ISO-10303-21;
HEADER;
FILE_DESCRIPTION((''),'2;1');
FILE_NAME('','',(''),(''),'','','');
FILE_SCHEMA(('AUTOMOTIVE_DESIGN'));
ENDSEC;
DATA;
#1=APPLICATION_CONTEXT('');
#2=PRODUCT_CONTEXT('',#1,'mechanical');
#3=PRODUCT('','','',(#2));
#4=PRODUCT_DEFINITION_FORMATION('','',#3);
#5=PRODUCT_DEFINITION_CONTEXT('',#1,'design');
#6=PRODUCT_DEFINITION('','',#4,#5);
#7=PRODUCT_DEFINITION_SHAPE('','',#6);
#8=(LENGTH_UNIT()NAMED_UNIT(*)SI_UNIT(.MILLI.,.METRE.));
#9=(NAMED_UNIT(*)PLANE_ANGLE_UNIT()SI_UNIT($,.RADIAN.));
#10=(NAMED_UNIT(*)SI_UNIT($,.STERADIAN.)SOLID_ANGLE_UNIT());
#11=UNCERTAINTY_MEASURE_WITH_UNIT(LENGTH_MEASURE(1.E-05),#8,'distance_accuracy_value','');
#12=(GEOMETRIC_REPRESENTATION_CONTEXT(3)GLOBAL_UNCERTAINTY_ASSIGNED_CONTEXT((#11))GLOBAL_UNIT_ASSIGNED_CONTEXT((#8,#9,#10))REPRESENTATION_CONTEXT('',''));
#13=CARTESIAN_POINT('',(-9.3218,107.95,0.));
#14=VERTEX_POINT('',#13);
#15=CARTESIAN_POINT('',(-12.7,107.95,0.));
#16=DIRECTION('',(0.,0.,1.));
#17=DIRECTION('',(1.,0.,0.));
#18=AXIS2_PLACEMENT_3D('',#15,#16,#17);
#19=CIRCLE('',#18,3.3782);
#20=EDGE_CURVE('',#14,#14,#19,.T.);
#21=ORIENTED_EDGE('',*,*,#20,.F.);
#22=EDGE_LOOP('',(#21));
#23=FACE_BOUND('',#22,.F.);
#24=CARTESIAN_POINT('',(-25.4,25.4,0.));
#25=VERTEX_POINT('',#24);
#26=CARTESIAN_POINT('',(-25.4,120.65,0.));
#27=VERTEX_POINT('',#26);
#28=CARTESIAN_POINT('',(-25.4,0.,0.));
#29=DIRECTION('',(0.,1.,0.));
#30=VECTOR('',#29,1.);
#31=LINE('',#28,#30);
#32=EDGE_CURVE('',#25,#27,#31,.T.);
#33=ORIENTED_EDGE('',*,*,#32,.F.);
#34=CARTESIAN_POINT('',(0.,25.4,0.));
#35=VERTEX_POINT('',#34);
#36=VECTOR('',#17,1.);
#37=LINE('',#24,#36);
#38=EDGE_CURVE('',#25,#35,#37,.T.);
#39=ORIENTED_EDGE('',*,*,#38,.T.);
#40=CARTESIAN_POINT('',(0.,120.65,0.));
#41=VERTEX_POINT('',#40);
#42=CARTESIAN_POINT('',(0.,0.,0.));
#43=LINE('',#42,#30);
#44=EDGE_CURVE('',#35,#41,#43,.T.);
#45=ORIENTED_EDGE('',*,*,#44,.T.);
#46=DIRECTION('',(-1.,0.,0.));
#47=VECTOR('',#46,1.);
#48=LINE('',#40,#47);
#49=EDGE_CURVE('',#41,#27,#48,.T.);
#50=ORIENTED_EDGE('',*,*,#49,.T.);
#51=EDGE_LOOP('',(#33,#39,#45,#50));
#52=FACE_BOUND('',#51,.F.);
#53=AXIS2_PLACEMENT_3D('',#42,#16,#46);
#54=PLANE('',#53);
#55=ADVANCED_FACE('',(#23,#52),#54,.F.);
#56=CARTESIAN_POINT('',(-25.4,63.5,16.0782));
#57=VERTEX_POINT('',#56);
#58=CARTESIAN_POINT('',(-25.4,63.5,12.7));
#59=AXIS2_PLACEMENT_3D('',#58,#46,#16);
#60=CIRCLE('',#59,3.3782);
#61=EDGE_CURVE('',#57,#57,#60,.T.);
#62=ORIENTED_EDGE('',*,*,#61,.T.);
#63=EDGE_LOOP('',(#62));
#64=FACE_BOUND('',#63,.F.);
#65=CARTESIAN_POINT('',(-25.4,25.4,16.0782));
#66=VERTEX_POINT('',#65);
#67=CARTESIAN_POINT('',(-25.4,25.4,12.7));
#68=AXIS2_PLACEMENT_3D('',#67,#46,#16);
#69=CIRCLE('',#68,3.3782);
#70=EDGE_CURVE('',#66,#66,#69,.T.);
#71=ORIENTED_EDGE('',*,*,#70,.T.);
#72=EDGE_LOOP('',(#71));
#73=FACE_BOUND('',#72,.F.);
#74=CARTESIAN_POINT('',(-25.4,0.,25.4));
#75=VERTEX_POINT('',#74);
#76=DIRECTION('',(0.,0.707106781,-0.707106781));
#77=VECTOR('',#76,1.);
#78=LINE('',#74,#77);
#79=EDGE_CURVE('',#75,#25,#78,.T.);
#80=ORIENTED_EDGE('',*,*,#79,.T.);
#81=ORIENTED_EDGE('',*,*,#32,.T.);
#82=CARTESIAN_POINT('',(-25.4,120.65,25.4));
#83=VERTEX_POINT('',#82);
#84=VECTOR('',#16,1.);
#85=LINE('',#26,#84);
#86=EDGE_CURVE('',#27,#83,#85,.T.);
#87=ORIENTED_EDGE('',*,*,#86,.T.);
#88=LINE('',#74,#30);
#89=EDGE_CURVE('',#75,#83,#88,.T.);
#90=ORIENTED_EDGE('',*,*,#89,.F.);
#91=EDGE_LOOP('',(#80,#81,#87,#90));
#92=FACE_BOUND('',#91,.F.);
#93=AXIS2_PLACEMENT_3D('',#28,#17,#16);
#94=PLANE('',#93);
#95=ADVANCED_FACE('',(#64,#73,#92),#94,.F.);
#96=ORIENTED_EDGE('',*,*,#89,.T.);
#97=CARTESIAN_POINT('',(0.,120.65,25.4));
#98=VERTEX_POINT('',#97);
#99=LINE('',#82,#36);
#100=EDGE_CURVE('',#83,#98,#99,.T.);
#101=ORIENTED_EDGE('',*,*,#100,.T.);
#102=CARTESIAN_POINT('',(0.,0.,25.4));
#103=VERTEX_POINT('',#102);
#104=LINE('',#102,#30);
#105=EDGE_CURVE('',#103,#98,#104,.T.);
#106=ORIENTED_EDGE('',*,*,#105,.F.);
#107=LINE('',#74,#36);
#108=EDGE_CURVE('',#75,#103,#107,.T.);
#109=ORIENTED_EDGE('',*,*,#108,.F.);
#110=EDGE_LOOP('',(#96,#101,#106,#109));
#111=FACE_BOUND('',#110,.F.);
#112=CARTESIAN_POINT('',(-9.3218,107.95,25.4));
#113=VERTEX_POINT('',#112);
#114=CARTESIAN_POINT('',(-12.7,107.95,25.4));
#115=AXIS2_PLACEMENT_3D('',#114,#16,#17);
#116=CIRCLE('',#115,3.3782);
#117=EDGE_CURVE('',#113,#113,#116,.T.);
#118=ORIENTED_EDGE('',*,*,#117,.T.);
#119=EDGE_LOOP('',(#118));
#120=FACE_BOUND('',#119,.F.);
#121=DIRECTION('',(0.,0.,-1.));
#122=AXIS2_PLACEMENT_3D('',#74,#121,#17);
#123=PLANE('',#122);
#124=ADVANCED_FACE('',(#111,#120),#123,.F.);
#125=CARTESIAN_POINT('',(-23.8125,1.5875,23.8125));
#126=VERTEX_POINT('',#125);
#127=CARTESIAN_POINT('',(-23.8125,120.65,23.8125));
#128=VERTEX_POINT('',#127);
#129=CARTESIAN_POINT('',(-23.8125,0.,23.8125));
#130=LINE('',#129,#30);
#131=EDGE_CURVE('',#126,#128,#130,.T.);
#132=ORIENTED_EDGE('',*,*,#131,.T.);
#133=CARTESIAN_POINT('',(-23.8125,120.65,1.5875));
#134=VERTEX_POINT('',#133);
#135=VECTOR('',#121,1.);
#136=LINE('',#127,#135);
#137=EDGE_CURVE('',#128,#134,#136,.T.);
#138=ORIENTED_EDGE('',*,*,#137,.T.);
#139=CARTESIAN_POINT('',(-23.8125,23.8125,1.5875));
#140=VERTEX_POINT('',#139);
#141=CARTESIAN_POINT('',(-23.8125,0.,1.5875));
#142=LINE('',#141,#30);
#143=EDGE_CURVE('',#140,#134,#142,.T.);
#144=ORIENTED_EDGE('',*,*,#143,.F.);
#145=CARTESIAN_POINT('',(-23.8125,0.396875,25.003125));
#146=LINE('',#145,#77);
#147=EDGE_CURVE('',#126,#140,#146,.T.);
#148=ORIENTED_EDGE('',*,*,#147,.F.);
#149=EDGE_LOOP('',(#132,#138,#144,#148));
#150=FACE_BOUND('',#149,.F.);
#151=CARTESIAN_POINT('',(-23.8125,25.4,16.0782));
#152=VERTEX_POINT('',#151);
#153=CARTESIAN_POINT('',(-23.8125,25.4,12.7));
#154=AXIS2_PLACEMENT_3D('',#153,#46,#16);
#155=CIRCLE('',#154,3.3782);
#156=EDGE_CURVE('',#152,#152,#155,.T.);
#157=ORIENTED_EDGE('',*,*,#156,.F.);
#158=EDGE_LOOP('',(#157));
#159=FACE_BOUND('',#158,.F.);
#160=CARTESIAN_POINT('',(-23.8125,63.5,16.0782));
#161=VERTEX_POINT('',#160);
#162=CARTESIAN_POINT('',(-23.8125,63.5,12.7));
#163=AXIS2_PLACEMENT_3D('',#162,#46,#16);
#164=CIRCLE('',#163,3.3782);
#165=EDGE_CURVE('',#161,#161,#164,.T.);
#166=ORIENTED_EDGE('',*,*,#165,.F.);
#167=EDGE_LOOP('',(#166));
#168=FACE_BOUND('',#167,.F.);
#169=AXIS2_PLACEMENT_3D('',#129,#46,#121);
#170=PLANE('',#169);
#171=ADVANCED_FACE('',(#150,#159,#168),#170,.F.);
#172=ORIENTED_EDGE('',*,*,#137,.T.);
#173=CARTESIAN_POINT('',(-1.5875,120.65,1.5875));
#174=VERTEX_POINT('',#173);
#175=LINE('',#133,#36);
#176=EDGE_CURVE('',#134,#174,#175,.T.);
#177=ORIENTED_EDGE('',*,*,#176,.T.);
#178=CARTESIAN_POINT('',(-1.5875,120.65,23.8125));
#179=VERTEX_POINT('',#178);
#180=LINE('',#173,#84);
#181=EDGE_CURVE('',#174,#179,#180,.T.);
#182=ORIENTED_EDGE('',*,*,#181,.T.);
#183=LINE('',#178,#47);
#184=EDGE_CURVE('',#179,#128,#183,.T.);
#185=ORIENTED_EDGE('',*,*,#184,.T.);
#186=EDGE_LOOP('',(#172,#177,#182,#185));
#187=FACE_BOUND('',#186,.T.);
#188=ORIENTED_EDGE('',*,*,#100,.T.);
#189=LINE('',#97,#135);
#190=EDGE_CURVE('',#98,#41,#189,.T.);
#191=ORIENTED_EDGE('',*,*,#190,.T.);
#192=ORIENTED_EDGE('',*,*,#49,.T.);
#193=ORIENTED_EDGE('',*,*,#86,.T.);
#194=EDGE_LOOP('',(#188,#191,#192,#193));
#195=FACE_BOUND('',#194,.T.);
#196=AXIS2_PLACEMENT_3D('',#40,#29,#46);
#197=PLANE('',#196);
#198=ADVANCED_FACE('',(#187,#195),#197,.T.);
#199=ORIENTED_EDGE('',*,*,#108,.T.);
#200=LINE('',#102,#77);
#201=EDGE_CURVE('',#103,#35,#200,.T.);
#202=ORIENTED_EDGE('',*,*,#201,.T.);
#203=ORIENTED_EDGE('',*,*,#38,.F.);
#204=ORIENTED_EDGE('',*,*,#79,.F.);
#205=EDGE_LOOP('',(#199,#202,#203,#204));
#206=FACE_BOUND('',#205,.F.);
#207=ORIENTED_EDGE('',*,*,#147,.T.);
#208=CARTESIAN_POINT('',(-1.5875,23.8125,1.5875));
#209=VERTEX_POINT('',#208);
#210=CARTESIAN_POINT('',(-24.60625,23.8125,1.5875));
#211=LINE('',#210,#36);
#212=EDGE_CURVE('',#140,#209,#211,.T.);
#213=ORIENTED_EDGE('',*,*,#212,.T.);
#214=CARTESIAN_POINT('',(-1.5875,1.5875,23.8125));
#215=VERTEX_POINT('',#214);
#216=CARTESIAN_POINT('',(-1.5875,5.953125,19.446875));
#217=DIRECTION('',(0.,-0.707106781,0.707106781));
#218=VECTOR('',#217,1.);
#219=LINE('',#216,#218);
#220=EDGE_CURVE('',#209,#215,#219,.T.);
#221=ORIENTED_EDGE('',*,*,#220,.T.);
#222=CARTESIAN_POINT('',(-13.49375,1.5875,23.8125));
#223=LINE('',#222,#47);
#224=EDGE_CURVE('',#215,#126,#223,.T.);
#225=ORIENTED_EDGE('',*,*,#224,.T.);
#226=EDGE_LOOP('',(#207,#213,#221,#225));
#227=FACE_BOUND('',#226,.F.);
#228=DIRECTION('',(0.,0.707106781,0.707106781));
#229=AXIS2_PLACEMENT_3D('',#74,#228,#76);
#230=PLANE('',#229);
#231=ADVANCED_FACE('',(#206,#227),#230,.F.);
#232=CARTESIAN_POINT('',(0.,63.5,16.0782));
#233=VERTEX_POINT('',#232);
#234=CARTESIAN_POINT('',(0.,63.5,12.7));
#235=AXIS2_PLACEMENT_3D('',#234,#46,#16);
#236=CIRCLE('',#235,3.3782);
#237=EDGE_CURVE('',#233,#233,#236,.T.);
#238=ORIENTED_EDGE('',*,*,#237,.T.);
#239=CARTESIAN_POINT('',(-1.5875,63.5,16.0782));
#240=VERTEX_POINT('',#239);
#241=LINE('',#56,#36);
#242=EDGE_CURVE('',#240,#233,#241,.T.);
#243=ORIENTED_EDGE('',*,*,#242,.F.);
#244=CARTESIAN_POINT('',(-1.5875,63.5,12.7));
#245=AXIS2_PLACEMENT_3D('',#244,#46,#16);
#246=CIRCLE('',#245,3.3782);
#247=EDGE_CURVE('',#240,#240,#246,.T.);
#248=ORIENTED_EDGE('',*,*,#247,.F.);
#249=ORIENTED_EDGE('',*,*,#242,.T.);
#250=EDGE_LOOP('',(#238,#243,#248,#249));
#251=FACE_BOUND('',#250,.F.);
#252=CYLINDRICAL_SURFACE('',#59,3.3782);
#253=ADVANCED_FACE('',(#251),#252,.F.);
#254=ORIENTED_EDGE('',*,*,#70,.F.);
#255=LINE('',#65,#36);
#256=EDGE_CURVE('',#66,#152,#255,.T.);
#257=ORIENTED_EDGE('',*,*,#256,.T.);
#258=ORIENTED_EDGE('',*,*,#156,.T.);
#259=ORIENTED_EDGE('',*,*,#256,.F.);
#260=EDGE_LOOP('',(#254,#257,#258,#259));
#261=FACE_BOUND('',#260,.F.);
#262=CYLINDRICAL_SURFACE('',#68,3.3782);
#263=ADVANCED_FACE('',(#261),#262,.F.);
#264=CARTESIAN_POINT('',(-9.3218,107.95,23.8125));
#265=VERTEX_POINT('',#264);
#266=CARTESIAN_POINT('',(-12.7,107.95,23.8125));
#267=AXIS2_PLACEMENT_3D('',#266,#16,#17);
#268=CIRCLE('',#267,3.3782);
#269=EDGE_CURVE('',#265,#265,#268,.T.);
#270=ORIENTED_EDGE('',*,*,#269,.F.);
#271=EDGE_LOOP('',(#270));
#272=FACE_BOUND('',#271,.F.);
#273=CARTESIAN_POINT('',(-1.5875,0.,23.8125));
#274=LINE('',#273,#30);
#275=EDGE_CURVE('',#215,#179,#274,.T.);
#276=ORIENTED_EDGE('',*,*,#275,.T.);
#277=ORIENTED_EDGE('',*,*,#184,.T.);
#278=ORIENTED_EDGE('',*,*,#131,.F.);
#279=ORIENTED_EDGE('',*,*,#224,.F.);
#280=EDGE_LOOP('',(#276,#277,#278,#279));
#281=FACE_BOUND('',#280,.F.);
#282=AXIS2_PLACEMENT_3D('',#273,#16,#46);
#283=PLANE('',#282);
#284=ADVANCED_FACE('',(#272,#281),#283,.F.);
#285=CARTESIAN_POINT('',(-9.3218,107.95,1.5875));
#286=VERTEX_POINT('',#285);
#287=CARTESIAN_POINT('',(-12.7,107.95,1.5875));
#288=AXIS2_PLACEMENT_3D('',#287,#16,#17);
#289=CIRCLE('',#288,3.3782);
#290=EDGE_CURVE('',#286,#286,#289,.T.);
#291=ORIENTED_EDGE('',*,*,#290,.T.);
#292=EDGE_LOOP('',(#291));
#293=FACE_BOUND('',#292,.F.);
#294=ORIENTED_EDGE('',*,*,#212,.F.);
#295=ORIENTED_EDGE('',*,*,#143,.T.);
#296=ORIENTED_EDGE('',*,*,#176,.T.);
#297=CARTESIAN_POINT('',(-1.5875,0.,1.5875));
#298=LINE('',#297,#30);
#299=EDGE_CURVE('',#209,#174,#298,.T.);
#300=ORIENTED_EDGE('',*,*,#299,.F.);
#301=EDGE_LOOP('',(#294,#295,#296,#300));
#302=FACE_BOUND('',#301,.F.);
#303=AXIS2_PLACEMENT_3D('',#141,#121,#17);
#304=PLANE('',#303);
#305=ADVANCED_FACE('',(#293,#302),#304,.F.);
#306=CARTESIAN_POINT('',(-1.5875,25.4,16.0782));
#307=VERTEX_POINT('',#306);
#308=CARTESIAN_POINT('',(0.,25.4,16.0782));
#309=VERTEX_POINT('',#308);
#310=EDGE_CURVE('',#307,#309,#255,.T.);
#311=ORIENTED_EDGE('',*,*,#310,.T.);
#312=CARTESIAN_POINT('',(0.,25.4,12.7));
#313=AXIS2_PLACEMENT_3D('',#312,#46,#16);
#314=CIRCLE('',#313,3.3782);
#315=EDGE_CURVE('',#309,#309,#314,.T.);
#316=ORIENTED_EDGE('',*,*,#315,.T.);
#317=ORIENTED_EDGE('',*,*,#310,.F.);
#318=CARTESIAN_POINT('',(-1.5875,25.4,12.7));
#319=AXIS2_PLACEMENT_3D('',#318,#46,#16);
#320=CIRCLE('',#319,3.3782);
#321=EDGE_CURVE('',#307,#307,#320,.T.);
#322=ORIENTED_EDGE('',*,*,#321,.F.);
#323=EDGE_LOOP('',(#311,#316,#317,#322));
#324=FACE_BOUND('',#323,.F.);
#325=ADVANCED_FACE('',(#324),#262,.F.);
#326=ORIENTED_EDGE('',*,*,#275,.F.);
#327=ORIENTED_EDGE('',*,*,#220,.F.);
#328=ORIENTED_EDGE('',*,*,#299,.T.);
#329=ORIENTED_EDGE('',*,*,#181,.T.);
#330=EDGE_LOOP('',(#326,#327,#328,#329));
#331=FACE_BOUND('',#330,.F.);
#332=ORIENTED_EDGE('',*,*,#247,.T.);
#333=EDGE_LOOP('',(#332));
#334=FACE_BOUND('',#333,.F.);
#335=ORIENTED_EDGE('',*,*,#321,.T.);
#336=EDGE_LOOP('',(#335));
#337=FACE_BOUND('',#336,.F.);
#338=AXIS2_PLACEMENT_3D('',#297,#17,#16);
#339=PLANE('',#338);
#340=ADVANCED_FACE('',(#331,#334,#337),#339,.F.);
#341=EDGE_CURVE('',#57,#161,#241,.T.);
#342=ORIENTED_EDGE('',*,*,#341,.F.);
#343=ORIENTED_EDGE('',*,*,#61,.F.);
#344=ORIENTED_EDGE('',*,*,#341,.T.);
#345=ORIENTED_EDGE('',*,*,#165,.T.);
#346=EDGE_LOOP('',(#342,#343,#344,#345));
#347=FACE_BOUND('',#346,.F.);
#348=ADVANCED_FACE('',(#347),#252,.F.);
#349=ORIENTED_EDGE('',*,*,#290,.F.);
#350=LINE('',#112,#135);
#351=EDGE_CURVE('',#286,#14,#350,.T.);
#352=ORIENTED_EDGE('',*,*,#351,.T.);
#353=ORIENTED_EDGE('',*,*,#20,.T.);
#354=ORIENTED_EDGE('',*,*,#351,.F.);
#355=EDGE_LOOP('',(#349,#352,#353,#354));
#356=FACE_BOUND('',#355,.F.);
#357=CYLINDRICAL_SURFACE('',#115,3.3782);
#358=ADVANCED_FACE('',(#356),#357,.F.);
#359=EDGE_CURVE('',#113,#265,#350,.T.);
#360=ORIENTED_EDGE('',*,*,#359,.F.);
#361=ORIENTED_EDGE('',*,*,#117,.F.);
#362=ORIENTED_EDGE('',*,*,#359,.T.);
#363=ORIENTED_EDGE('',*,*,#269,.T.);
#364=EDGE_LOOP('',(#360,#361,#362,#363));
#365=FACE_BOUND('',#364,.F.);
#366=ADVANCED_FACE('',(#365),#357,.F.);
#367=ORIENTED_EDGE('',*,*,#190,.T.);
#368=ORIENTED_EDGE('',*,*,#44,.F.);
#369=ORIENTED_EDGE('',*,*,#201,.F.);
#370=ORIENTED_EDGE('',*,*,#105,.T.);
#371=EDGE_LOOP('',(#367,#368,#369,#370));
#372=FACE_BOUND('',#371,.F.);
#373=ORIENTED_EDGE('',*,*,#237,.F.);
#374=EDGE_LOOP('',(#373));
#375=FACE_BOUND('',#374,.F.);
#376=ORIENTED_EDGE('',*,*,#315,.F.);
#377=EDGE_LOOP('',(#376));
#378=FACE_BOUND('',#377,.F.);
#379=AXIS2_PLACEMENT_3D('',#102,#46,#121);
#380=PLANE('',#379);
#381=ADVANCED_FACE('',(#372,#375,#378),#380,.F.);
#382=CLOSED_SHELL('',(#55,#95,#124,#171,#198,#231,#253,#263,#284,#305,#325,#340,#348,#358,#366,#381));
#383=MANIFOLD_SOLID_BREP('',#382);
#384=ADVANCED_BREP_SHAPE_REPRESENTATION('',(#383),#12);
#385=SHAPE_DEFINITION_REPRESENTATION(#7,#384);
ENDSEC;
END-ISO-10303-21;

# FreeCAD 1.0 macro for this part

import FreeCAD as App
import Part
import Sketcher
Q = App.Units.Quantity

doc = App.newDocument("Part")
body = doc.addObject("PartDesign::Body", "Body")

# Sketch on XZ plane
sketch1 = body.newObject("Sketcher::SketchObject", "Sketch")
sketch1.AttachmentSupport = (doc.getObject("XZ_Plane"), [""])
sketch1.MapMode = "FlatFace"
sketch1.addGeometry([
    Part.LineSegment(App.Vector(0, 25, 0), App.Vector(0, 0, 0)),  # 0
    Part.LineSegment(App.Vector(0, 0, 0), App.Vector(-25, 0, 0)),  # 1
    Part.LineSegment(App.Vector(-25, 0, 0), App.Vector(-25, 25, 0)),  # 2
    Part.LineSegment(App.Vector(-25, 25, 0), App.Vector(0, 25, 0)),  # 3
    Part.LineSegment(App.Vector(-2, 2, 0), App.Vector(-2, 24, 0)),  # 4
    Part.LineSegment(App.Vector(-2, 24, 0), App.Vector(-24, 24, 0)),  # 5
    Part.LineSegment(App.Vector(-24, 24, 0), App.Vector(-24, 2, 0)),  # 6
    Part.LineSegment(App.Vector(-24, 2, 0), App.Vector(-2, 2, 0)),  # 7
], False)
sketch1.addConstraint([
    Sketcher.Constraint("Coincident", 0, 2, 1, 1),
    Sketcher.Constraint("Coincident", 1, 2, 2, 1),
    Sketcher.Constraint("Coincident", 2, 2, 3, 1),
    Sketcher.Constraint("Coincident", 3, 2, 0, 1),
    Sketcher.Constraint("Coincident", 4, 2, 5, 1),
    Sketcher.Constraint("Coincident", 5, 2, 6, 1),
    Sketcher.Constraint("Coincident", 6, 2, 7, 1),
    Sketcher.Constraint("Coincident", 7, 2, 4, 1),
    Sketcher.Constraint("Vertical", 0),
    Sketcher.Constraint("Horizontal", 1),
    Sketcher.Constraint("Vertical", 2),
    Sketcher.Constraint("Horizontal", 3),
    Sketcher.Constraint("Vertical", 4),
    Sketcher.Constraint("Horizontal", 5),
    Sketcher.Constraint("Vertical", 6),
    Sketcher.Constraint("Horizontal", 7),
    Sketcher.Constraint("Coincident", 0, 2, -1, 1),
    Sketcher.Constraint("Equal", 3, 0),
    Sketcher.Constraint("Equal", 7, 4),
    Sketcher.Constraint("DistanceX", 1, 2, 1, 1, Q("1 in")),
    Sketcher.Constraint("DistanceX", 4, 2, -1, 1, Q("0.0625 in")),
    Sketcher.Constraint("DistanceY", -1, 1, 6, 2, Q("0.0625 in")),
    Sketcher.Constraint("DistanceY", 4, 2, 3, 2, Q("0.0625 in")),
])
pad1 = body.newObject("PartDesign::Pad", "Pad")
pad1.Profile = sketch1
pad1.Length = Q("4.75 in")
pad1.Reversed = True

# Sketch on YZ plane
sketch2 = body.newObject("Sketcher::SketchObject", "Sketch001")
sketch2.AttachmentSupport = (doc.getObject("YZ_Plane"), [""])
sketch2.MapMode = "FlatFace"
sketch2.AttachmentOffset = App.Placement(App.Vector(0, 0, -1 * 25.4), App.Rotation())
sketch2.addGeometry([
    Part.LineSegment(App.Vector(25, 0, 0), App.Vector(0, 0, 0)),
    Part.LineSegment(App.Vector(0, 0, 0), App.Vector(0, 25, 0)),
    Part.LineSegment(App.Vector(0, 25, 0), App.Vector(25, 0, 0)),
], False)
sketch2.addConstraint([
    Sketcher.Constraint("Coincident", 0, 2, 1, 1),
    Sketcher.Constraint("Coincident", 1, 2, 2, 1),
    Sketcher.Constraint("Coincident", 2, 2, 0, 1),
    Sketcher.Constraint("Horizontal", 0),
    Sketcher.Constraint("Vertical", 1),
    Sketcher.Constraint("Coincident", 0, 2, -1, 1),
    Sketcher.Constraint("Equal", 0, 1),
    Sketcher.Constraint("DistanceX", 0, 2, 0, 1, Q("1 in")),
])
pocket1 = body.newObject("PartDesign::Pocket", "Pocket")
pocket1.Profile = sketch2
pocket1.Length = Q("1 in")
pocket1.Reversed = True

# Sketch on YZ plane
sketch3 = body.newObject("Sketcher::SketchObject", "Sketch002")
sketch3.AttachmentSupport = (doc.getObject("YZ_Plane"), [""])
sketch3.MapMode = "FlatFace"
sketch3.AttachmentOffset = App.Placement(App.Vector(0, 0, -1 * 25.4), App.Rotation())
sketch3.addGeometry([
    Part.Circle(App.Vector(25.4, 12.7, 0), App.Vector(0, 0, 1), 3.4),
    Part.Circle(App.Vector(63.5, 12.7, 0), App.Vector(0, 0, 1), 3.4),
], False)
sketch3.addConstraint([
    Sketcher.Constraint("Equal", 0, 1),
    Sketcher.Constraint("Horizontal", 0, 3, 1, 3),
    Sketcher.Constraint("Diameter", 0, Q("0.266 in")),
    Sketcher.Constraint("DistanceX", -1, 1, 0, 3, Q("1 in")),
    Sketcher.Constraint("DistanceY", -1, 1, 0, 3, Q("0.5 in")),
    Sketcher.Constraint("DistanceX", -1, 1, 1, 3, Q("2.5 in")),
])
pocket2 = body.newObject("PartDesign::Pocket", "Pocket001")
pocket2.Profile = sketch3
pocket2.Length = Q("1 in")
pocket2.Reversed = True

# Sketch on XY plane
sketch4 = body.newObject("Sketcher::SketchObject", "Sketch003")
sketch4.AttachmentSupport = (doc.getObject("XY_Plane"), [""])
sketch4.MapMode = "FlatFace"
sketch4.AttachmentOffset = App.Placement(App.Vector(0, 0, 1 * 25.4), App.Rotation())
sketch4.addGeometry(Part.Circle(App.Vector(-12.7, 108, 0), App.Vector(0, 0, 1), 3.4), False)
sketch4.addConstraint([
    Sketcher.Constraint("Diameter", 0, Q("0.266 in")),
    Sketcher.Constraint("DistanceX", 0, 3, -1, 1, Q("0.5 in")),
    Sketcher.Constraint("DistanceY", -1, 1, 0, 3, Q("4.25 in")),
])
pocket3 = body.newObject("PartDesign::Pocket", "Pocket002")
pocket3.Profile = sketch4
pocket3.Length = Q("1 in")

doc.recompute()
